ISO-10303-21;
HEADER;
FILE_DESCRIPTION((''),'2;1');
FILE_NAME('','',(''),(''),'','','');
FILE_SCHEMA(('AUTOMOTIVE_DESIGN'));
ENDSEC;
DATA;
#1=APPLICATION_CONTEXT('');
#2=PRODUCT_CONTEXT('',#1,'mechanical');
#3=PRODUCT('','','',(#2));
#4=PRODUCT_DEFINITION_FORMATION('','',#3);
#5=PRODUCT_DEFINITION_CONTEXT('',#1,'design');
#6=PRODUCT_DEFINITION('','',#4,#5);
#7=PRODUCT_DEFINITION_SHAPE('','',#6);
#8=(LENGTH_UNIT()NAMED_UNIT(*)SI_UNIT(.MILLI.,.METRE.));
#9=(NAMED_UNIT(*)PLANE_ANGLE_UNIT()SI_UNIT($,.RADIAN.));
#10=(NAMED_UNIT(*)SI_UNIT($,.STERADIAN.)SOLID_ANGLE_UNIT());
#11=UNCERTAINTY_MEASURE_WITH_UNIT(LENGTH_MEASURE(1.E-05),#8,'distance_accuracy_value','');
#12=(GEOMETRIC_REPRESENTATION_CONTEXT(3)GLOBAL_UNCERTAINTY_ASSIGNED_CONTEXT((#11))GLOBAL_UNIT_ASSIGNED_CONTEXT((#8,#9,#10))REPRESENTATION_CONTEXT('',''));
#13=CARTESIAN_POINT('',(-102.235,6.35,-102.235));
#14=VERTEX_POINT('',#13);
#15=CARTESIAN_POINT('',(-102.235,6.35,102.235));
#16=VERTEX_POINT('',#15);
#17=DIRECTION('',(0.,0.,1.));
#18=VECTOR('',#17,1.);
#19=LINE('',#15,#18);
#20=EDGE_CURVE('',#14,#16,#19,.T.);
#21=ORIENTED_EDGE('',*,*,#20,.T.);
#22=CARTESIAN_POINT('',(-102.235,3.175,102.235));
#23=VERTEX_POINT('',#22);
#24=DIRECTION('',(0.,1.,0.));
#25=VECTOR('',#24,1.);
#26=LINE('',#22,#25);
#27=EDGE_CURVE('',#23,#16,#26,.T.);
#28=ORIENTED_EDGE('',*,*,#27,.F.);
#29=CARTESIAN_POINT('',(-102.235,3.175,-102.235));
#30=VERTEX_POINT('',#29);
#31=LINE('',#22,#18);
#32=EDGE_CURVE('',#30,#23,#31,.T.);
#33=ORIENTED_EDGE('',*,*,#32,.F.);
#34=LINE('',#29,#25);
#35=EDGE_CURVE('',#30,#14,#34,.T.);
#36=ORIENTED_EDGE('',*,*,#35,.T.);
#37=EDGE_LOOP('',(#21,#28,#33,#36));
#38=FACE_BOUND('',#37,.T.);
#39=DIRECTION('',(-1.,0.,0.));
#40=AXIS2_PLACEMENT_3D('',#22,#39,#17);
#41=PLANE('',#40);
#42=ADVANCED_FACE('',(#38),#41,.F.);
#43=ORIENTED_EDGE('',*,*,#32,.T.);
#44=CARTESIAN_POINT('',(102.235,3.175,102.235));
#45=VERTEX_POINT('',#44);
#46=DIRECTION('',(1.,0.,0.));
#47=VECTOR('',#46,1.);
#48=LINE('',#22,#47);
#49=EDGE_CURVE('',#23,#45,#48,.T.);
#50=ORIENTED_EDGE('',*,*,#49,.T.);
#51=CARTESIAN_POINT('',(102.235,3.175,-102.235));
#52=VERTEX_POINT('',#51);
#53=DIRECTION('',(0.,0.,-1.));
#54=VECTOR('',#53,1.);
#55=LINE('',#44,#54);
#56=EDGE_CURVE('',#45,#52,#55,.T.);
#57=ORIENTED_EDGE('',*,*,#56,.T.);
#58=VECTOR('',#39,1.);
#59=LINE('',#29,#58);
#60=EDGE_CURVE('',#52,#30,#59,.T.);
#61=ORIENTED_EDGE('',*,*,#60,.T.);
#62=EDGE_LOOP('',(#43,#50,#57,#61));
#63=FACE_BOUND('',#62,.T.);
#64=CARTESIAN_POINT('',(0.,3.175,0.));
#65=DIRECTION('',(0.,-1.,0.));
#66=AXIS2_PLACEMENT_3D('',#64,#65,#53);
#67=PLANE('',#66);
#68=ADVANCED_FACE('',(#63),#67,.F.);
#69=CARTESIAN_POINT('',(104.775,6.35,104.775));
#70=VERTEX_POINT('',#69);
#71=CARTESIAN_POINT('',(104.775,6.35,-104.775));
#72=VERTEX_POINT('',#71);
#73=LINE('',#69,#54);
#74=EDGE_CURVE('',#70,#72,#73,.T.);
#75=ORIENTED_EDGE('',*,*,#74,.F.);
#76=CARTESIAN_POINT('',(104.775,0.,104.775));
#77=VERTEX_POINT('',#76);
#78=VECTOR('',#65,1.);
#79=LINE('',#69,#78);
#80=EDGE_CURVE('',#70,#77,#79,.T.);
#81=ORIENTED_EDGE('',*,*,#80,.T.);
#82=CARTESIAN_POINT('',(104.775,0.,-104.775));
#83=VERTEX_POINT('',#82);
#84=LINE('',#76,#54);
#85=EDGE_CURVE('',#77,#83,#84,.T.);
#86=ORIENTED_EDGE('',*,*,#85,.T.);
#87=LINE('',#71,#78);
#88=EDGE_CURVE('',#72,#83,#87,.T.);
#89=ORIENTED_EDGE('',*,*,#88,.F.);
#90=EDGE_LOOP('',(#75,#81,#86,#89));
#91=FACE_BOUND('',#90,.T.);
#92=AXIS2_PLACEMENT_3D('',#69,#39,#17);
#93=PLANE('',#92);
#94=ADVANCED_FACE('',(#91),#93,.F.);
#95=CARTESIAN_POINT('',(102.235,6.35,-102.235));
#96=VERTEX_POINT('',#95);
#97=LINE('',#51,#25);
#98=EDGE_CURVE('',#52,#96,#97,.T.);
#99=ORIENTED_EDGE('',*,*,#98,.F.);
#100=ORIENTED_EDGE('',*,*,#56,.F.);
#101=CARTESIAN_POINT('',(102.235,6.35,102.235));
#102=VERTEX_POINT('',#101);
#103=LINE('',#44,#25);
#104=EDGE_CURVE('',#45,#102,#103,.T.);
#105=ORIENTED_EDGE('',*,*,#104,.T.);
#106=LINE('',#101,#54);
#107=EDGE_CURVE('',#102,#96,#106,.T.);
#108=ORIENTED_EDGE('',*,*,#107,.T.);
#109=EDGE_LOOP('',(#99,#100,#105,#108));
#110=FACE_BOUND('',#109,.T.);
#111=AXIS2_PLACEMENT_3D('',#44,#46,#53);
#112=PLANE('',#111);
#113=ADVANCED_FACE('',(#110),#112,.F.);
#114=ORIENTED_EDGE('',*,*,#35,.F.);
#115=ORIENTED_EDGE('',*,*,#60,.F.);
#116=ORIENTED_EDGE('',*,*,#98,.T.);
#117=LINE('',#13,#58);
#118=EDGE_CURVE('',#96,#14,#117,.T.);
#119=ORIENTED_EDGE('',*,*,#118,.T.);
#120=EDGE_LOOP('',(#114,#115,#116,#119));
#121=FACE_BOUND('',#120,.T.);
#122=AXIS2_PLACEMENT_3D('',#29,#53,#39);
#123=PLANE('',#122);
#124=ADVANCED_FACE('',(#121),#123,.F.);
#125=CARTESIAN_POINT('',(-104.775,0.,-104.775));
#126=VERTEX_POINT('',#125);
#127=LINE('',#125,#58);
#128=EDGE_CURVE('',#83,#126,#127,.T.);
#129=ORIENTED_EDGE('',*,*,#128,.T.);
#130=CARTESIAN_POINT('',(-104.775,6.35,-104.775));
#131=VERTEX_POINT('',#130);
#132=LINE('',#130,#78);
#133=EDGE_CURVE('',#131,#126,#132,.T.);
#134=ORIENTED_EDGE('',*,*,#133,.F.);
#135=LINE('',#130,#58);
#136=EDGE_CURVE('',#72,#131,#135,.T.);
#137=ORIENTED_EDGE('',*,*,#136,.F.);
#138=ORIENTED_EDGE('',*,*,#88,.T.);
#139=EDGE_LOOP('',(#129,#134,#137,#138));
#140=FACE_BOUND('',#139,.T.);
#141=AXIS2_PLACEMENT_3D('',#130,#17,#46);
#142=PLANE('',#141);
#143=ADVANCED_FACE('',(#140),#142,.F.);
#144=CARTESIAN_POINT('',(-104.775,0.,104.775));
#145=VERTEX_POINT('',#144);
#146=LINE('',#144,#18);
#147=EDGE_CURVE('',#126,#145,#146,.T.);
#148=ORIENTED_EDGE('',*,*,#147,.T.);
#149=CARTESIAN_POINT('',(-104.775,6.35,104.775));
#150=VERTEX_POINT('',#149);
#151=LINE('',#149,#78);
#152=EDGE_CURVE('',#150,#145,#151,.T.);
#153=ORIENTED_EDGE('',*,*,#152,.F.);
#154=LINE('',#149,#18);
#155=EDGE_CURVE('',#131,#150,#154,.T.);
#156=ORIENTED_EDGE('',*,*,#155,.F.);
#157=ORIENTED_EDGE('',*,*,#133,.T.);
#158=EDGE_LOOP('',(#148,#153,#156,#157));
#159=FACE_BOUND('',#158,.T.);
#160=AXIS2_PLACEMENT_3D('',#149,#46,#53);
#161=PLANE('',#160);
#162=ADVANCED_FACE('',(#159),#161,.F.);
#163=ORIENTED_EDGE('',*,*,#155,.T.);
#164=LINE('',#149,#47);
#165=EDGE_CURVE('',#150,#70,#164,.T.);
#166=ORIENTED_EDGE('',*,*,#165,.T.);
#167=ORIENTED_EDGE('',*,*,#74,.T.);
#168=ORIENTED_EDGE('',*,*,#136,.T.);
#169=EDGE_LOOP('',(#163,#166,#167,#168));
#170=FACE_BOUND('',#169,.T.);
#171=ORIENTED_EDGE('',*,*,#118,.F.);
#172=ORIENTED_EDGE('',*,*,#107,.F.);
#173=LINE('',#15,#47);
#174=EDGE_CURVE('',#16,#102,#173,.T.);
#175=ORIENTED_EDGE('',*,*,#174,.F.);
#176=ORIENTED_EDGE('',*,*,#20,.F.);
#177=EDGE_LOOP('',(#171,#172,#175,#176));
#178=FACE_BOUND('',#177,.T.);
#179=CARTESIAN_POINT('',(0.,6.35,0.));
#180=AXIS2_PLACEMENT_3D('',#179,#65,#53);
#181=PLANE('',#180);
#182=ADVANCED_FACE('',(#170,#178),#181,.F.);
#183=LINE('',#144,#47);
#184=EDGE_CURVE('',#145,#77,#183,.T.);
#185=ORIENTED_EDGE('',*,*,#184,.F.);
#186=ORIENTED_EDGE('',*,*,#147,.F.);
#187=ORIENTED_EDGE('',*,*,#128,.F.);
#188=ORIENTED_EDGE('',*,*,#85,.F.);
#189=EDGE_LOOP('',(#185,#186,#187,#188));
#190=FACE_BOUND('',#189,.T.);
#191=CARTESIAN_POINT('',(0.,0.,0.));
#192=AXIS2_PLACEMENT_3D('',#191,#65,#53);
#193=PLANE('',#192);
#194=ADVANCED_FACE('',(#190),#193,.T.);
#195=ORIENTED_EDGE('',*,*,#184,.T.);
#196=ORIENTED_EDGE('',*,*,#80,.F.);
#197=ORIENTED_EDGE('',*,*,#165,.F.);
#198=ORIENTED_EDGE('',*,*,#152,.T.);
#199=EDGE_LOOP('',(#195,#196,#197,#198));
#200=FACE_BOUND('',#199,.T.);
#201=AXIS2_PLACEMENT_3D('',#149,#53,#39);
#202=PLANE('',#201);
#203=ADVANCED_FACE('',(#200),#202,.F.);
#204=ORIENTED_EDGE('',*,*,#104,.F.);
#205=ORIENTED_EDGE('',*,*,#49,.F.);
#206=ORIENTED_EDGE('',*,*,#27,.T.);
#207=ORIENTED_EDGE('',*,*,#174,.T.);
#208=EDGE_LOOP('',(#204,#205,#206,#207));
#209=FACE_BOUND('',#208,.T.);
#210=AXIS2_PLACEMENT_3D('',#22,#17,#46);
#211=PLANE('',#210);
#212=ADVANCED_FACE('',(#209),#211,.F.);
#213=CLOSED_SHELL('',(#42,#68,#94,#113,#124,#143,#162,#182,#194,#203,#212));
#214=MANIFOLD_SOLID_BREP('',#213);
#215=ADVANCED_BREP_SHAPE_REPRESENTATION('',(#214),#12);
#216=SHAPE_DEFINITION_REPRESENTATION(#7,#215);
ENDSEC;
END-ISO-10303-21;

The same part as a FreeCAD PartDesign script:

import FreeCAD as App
import Part
import Sketcher
Q = App.Units.Quantity

doc = App.newDocument("Part")
params = doc.addObject("Spreadsheet::Sheet", "Params")
for row, (alias, value) in enumerate([
    ("sketch1_width", "8.25 in"),
    ("pad1_length", "0.25 in"),
    ("sketch2_width", "8.05 in"),
    ("pocket1_length", "0.125 in"),
], start=1):
    params.set(f"A{row}", alias)
    params.set(f"B{row}", "=" + value)
    params.setAlias(f"B{row}", alias)

body = doc.addObject("PartDesign::Body", "Body")

sketch1 = body.newObject("Sketcher::SketchObject", "Sketch")
sketch1.AttachmentSupport = (doc.getObject("XZ_Plane"), [""])
sketch1.MapMode = "FlatFace"
sketch1.addGeometry([
    Part.LineSegment(App.Vector(-105, -105, 0), App.Vector(-105, 105, 0)),
    Part.LineSegment(App.Vector(-105, 105, 0), App.Vector(105, 105, 0)),
    Part.LineSegment(App.Vector(105, 105, 0), App.Vector(105, -105, 0)),
    Part.LineSegment(App.Vector(105, -105, 0), App.Vector(-105, -105, 0)),
], False)
sketch1.addConstraint([
    Sketcher.Constraint("Coincident", 0, 2, 1, 1),
    Sketcher.Constraint("Coincident", 1, 2, 2, 1),
    Sketcher.Constraint("Coincident", 2, 2, 3, 1),
    Sketcher.Constraint("Coincident", 3, 2, 0, 1),
    Sketcher.Constraint("Vertical", 0),
    Sketcher.Constraint("Horizontal", 1),
    Sketcher.Constraint("Vertical", 2),
    Sketcher.Constraint("Horizontal", 3),
    Sketcher.Constraint("Symmetric", 0, 2, 2, 2, -1, 1),
    Sketcher.Constraint("Equal", 3, 0),
    Sketcher.Constraint("DistanceX", 1, 1, 1, 2, Q("8.25 in")),
])
sketch1.setExpression("Constraints[10]", "Params.sketch1_width")
pad1 = body.newObject("PartDesign::Pad", "Pad")
pad1.Profile = sketch1
pad1.setExpression("Length", "Params.pad1_length")
pad1.Reversed = True

sketch2 = body.newObject("Sketcher::SketchObject", "Sketch001")
sketch2.AttachmentSupport = (doc.getObject("XZ_Plane"), [""])
sketch2.MapMode = "FlatFace"
sketch2.AttachmentOffset = App.Placement(App.Vector(0, 0, -0.25 * 25.4), App.Rotation())
sketch2.addGeometry([
    Part.LineSegment(App.Vector(-102, -102, 0), App.Vector(-102, 102, 0)),
    Part.LineSegment(App.Vector(-102, 102, 0), App.Vector(102, 102, 0)),
    Part.LineSegment(App.Vector(102, 102, 0), App.Vector(102, -102, 0)),
    Part.LineSegment(App.Vector(102, -102, 0), App.Vector(-102, -102, 0)),
], False)
sketch2.addConstraint([
    Sketcher.Constraint("Coincident", 0, 2, 1, 1),
    Sketcher.Constraint("Coincident", 1, 2, 2, 1),
    Sketcher.Constraint("Coincident", 2, 2, 3, 1),
    Sketcher.Constraint("Coincident", 3, 2, 0, 1),
    Sketcher.Constraint("Vertical", 0),
    Sketcher.Constraint("Horizontal", 1),
    Sketcher.Constraint("Vertical", 2),
    Sketcher.Constraint("Horizontal", 3),
    Sketcher.Constraint("Symmetric", 0, 2, 2, 2, -1, 1),
    Sketcher.Constraint("Equal", 3, 0),
    Sketcher.Constraint("DistanceX", 1, 1, 1, 2, Q("8.05 in")),
])
sketch2.setExpression("Constraints[10]", "Params.sketch2_width")
pocket1 = body.newObject("PartDesign::Pocket", "Pocket")
pocket1.Profile = sketch2
pocket1.setExpression("Length", "Params.pocket1_length")
pocket1.Reversed = True

doc.recompute()
